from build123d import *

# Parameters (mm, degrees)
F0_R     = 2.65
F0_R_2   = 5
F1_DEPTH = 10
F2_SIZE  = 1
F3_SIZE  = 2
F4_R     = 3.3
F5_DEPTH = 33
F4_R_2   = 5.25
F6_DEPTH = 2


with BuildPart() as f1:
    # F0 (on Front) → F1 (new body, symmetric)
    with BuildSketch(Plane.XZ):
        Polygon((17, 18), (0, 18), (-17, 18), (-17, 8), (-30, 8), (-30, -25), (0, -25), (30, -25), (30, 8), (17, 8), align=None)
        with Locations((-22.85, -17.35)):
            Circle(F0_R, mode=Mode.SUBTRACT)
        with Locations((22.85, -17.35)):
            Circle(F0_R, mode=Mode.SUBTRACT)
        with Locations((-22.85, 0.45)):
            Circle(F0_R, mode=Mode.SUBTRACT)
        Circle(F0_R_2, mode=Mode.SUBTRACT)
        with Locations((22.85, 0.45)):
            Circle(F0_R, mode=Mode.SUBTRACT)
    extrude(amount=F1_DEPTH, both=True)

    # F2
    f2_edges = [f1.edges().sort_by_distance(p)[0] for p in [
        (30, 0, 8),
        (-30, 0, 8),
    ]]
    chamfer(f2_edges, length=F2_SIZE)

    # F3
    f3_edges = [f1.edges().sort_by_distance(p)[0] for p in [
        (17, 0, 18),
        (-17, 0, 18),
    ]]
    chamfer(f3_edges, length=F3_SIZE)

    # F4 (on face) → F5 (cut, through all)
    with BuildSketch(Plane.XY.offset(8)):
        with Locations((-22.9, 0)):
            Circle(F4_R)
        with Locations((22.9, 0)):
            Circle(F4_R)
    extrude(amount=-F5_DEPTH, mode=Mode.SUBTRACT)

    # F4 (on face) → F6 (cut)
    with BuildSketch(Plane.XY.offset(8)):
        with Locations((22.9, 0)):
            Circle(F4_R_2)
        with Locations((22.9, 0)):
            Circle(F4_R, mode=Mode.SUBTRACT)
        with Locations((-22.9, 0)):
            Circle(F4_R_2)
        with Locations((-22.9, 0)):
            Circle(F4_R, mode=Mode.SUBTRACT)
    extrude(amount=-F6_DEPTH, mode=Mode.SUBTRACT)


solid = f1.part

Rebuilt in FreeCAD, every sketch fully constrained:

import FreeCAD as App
import Part
import Sketcher

V = App.Vector
Q = App.Units.Quantity


def edges_at(feature, points):
    """Names of the edges that pass closest to the given points."""
    edges = feature.Shape.Edges
    near = lambda p: min(range(len(edges)), key=lambda i: edges[i].distToShape(Part.Vertex(*p))[0])
    return sorted({f"Edge{near(p) + 1}" for p in points})

doc = App.newDocument("Part")
body = doc.addObject("PartDesign::Body", "Body")

# Sketch on XZ plane
sketch1 = doc.addObject("Sketcher::SketchObject", "Sketch")
body.addObject(sketch1)
sketch1.AttachmentSupport = (doc.XZ_Plane, [""])
sketch1.MapMode = "FlatFace"
sketch1.addGeometry([
    Part.LineSegment(V(17, 18, 0), V(-17, 18, 0)),  # 0
    Part.LineSegment(V(-17, 18, 0), V(-17, 8, 0)),  # 1
    Part.LineSegment(V(-17, 8, 0), V(-30, 8, 0)),  # 2
    Part.LineSegment(V(-30, 8, 0), V(-30, -25, 0)),  # 3
    Part.LineSegment(V(-30, -25, 0), V(30, -25, 0)),  # 4
    Part.LineSegment(V(30, -25, 0), V(30, 8, 0)),  # 5
    Part.LineSegment(V(30, 8, 0), V(17, 8, 0)),  # 6
    Part.LineSegment(V(17, 8, 0), V(17, 18, 0)),  # 7
    Part.Circle(V(-22.85, -17.35, 0), V(0, 0, 1), 2.65),  # 8
    Part.Circle(V(22.85, -17.35, 0), V(0, 0, 1), 2.65),  # 9
    Part.Circle(V(-22.85, 0.45, 0), V(0, 0, 1), 2.65),  # 10
    Part.Circle(V(0, 0, 0), V(0, 0, 1), 5),  # 11
    Part.Circle(V(22.85, 0.45, 0), V(0, 0, 1), 2.65),  # 12
], False)
sketch1.addConstraint([
    Sketcher.Constraint("Coincident", 0, 2, 1, 1),
    Sketcher.Constraint("Coincident", 1, 2, 2, 1),
    Sketcher.Constraint("Coincident", 2, 2, 3, 1),
    Sketcher.Constraint("Coincident", 3, 2, 4, 1),
    Sketcher.Constraint("Coincident", 4, 2, 5, 1),
    Sketcher.Constraint("Coincident", 5, 2, 6, 1),
    Sketcher.Constraint("Coincident", 6, 2, 7, 1),
    Sketcher.Constraint("Coincident", 7, 2, 0, 1),
    Sketcher.Constraint("Horizontal", 0),
    Sketcher.Constraint("Vertical", 1),
    Sketcher.Constraint("Horizontal", 2),
    Sketcher.Constraint("Vertical", 3),
    Sketcher.Constraint("Horizontal", 4),
    Sketcher.Constraint("Vertical", 5),
    Sketcher.Constraint("Horizontal", 6),
    Sketcher.Constraint("Vertical", 7),
    Sketcher.Constraint("Coincident", 11, 3, -1, 1),
    Sketcher.Constraint("Equal", 8, 9),
    Sketcher.Constraint("Equal", 9, 10),
    Sketcher.Constraint("Equal", 10, 12),
    Sketcher.Constraint("Symmetric", 8, 3, 9, 3, -2),
    Sketcher.Constraint("Symmetric", 10, 3, 12, 3, -2),
    Sketcher.Constraint("Symmetric", 2, 2, 5, 2, -2),
    Sketcher.Constraint("Vertical", 8, 3, 10, 3),
    Sketcher.Constraint("Equal", 2, 6),
    Sketcher.Constraint("Diameter", 11, Q("10 mm")),
    Sketcher.Constraint("Diameter", 8, Q("5.3 mm")),
    Sketcher.Constraint("DistanceX", 0, 2, 0, 1, Q("34 mm")),
    Sketcher.Constraint("DistanceX", 2, 2, 2, 1, Q("13 mm")),
    Sketcher.Constraint("DistanceY", 1, 2, 1, 1, Q("10 mm")),
    Sketcher.Constraint("DistanceY", 3, 2, 3, 1, Q("33 mm")),
    Sketcher.Constraint("DistanceY", -1, 1, 0, 2, Q("18 mm")),
    Sketcher.Constraint("DistanceX", 8, 3, 9, 3, Q("45.7 mm")),
    Sketcher.Constraint("DistanceY", 8, 3, 10, 3, Q("17.8 mm")),
    Sketcher.Constraint("DistanceY", 8, 3, -1, 1, Q("17.35 mm")),
])
pad1 = doc.addObject("PartDesign::Pad", "Pad")
body.addObject(pad1)
pad1.Profile = sketch1
pad1.Length = 20
pad1.Midplane = True
doc.recompute()

chamfer = doc.addObject("PartDesign::Chamfer", "Chamfer")
body.addObject(chamfer)
chamfer.Base = (pad1, edges_at(pad1, [(30, 0, 8), (-30, 0, 8)]))
chamfer.Size = 1
doc.recompute()

chamfer2 = doc.addObject("PartDesign::Chamfer", "Chamfer001")
body.addObject(chamfer2)
chamfer2.Base = (chamfer, edges_at(chamfer, [(17, 0, 18), (-17, 0, 18)]))
chamfer2.Size = 2

# Sketch on XY plane
sketch2 = doc.addObject("Sketcher::SketchObject", "Sketch001")
body.addObject(sketch2)
sketch2.AttachmentSupport = (doc.XY_Plane, [""])
sketch2.MapMode = "FlatFace"
sketch2.AttachmentOffset = App.Placement(V(0, 0, 8), App.Rotation())
sketch2.addGeometry([
    Part.Circle(V(-22.9, 0, 0), V(0, 0, 1), 3.3),
    Part.Circle(V(22.9, 0, 0), V(0, 0, 1), 3.3),
], False)
sketch2.addConstraint([
    Sketcher.Constraint("Equal", 0, 1),
    Sketcher.Constraint("Symmetric", 0, 3, 1, 3, -1, 1),
    Sketcher.Constraint("PointOnObject", 0, 3, -1),
    Sketcher.Constraint("Diameter", 0, Q("6.6 mm")),
    Sketcher.Constraint("DistanceX", 0, 3, -1, 1, Q("22.9 mm")),
])
pocket1 = doc.addObject("PartDesign::Pocket", "Pocket")
body.addObject(pocket1)
pocket1.Profile = sketch2
pocket1.Type = "ThroughAll"

# Sketch on XY plane
sketch3 = doc.addObject("Sketcher::SketchObject", "Sketch002")
body.addObject(sketch3)
sketch3.AttachmentSupport = (doc.XY_Plane, [""])
sketch3.MapMode = "FlatFace"
sketch3.AttachmentOffset = App.Placement(V(0, 0, 8), App.Rotation())
sketch3.addGeometry([
    Part.Circle(V(22.9, 0, 0), V(0, 0, 1), 5.25),
    Part.Circle(V(22.9, 0, 0), V(0, 0, 1), 3.3),
    Part.Circle(V(-22.9, 0, 0), V(0, 0, 1), 5.25),
    Part.Circle(V(-22.9, 0, 0), V(0, 0, 1), 3.3),
], False)
sketch3.addConstraint([
    Sketcher.Constraint("Coincident", 1, 3, 0, 3),
    Sketcher.Constraint("Coincident", 3, 3, 2, 3),
    Sketcher.Constraint("Equal", 0, 2),
    Sketcher.Constraint("Equal", 1, 3),
    Sketcher.Constraint("Symmetric", 0, 3, 2, 3, -1, 1),
    Sketcher.Constraint("PointOnObject", 0, 3, -1),
    Sketcher.Constraint("Diameter", 0, Q("10.5 mm")),
    Sketcher.Constraint("Diameter", 1, Q("6.6 mm")),
    Sketcher.Constraint("DistanceX", -1, 1, 0, 3, Q("22.9 mm")),
])
pocket2 = doc.addObject("PartDesign::Pocket", "Pocket001")
body.addObject(pocket2)
pocket2.Profile = sketch3
pocket2.Length = 2

doc.recompute()
